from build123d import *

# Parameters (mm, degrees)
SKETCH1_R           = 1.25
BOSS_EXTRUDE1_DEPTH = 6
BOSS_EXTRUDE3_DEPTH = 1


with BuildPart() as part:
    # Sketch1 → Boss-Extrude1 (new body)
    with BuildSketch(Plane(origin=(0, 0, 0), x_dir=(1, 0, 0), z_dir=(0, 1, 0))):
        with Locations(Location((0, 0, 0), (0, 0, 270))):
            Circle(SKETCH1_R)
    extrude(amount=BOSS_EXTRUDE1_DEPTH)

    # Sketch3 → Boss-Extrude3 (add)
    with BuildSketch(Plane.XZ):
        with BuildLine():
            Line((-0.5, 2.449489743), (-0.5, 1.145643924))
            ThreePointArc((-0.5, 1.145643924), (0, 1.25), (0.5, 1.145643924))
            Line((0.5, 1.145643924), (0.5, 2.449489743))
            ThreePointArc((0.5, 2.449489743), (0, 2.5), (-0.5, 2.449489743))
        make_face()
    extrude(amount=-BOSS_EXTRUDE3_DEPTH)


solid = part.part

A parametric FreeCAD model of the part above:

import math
import FreeCAD as App
import Part
import Sketcher
Q = App.Units.Quantity

doc = App.newDocument("Part")
params = doc.addObject("Spreadsheet::Sheet", "Params")
for row, (alias, value) in enumerate([
    ("sketch1_diameter", "2.5 mm"),
    ("pad1_length", "6 mm"),
    ("sketch2_radius", "2.5 mm"),
    ("sketch2_radius2", "1.25 mm"),
    ("pad2_length", "1 mm"),
], start=1):
    params.set(f"A{row}", alias)
    params.set(f"B{row}", "=" + value)
    params.setAlias(f"B{row}", alias)

body = doc.addObject("PartDesign::Body", "Body")

sketch1 = doc.addObject("Sketcher::SketchObject", "Sketch")
body.addObject(sketch1)
sketch1.AttachmentSupport = (doc.XZ_Plane, [""])
sketch1.MapMode = "FlatFace"
sketch1.addGeometry(Part.Circle(App.Vector(0, 0, 0), App.Vector(0, 0, 1), 1.25), False)
sketch1.addConstraint(Sketcher.Constraint("Coincident", 0, 3, -1, 1))
sketch1.addConstraint(Sketcher.Constraint("Diameter", 0, Q("2.5 mm")))
sketch1.setExpression("Constraints[1]", "Params.sketch1_diameter")
pad1 = doc.addObject("PartDesign::Pad", "Pad")
body.addObject(pad1)
pad1.Profile = sketch1
pad1.setExpression("Length", "Params.pad1_length")
pad1.Reversed = True

sketch2 = doc.addObject("Sketcher::SketchObject", "Sketch001")
body.addObject(sketch2)
sketch2.AttachmentSupport = (doc.XZ_Plane, [""])
sketch2.MapMode = "FlatFace"
sketch2.addGeometry(Part.LineSegment(App.Vector(-0.5, 2.44949, 0), App.Vector(-0.5, 1.145644, 0)), False)
sketch2.addGeometry(Part.ArcOfCircle(Part.Circle(App.Vector(0, 0, 0), App.Vector(0, 0, 1), 1.25), math.radians(66.421822), math.radians(113.578178)), False)
sketch2.addGeometry(Part.LineSegment(App.Vector(0.5, 1.145644, 0), App.Vector(0.5, 2.44949, 0)), False)
sketch2.addGeometry(Part.ArcOfCircle(Part.Circle(App.Vector(0, 0, 0), App.Vector(0, 0, 1), 2.5), math.radians(78.463041), math.radians(101.536959)), False)
sketch2.addConstraint(Sketcher.Constraint("Coincident", 0, 2, 1, 2))
sketch2.addConstraint(Sketcher.Constraint("Coincident", 1, 1, 2, 1))
sketch2.addConstraint(Sketcher.Constraint("Coincident", 2, 2, 3, 1))
sketch2.addConstraint(Sketcher.Constraint("Coincident", 3, 2, 0, 1))
sketch2.addConstraint(Sketcher.Constraint("Vertical", 0))
sketch2.addConstraint(Sketcher.Constraint("Vertical", 2))
sketch2.addConstraint(Sketcher.Constraint("Coincident", 1, 3, -1, 1))
sketch2.addConstraint(Sketcher.Constraint("Coincident", 3, 3, -1, 1))
sketch2.addConstraint(Sketcher.Constraint("Horizontal", 0, 2, 1, 1))
sketch2.addConstraint(Sketcher.Constraint("Radius", 3, Q("2.5 mm")))
sketch2.addConstraint(Sketcher.Constraint("Radius", 1, Q("1.25 mm")))
sketch2.addConstraint(Sketcher.Constraint("DistanceX", 0, 2, 1, 1, Q("1 mm")))
sketch2.setExpression("Constraints[9]", "Params.sketch2_radius")
sketch2.setExpression("Constraints[10]", "Params.sketch2_radius2")
pad2 = doc.addObject("PartDesign::Pad", "Pad001")
body.addObject(pad2)
pad2.Profile = sketch2
pad2.setExpression("Length", "Params.pad2_length")
pad2.Reversed = True

doc.recompute()
